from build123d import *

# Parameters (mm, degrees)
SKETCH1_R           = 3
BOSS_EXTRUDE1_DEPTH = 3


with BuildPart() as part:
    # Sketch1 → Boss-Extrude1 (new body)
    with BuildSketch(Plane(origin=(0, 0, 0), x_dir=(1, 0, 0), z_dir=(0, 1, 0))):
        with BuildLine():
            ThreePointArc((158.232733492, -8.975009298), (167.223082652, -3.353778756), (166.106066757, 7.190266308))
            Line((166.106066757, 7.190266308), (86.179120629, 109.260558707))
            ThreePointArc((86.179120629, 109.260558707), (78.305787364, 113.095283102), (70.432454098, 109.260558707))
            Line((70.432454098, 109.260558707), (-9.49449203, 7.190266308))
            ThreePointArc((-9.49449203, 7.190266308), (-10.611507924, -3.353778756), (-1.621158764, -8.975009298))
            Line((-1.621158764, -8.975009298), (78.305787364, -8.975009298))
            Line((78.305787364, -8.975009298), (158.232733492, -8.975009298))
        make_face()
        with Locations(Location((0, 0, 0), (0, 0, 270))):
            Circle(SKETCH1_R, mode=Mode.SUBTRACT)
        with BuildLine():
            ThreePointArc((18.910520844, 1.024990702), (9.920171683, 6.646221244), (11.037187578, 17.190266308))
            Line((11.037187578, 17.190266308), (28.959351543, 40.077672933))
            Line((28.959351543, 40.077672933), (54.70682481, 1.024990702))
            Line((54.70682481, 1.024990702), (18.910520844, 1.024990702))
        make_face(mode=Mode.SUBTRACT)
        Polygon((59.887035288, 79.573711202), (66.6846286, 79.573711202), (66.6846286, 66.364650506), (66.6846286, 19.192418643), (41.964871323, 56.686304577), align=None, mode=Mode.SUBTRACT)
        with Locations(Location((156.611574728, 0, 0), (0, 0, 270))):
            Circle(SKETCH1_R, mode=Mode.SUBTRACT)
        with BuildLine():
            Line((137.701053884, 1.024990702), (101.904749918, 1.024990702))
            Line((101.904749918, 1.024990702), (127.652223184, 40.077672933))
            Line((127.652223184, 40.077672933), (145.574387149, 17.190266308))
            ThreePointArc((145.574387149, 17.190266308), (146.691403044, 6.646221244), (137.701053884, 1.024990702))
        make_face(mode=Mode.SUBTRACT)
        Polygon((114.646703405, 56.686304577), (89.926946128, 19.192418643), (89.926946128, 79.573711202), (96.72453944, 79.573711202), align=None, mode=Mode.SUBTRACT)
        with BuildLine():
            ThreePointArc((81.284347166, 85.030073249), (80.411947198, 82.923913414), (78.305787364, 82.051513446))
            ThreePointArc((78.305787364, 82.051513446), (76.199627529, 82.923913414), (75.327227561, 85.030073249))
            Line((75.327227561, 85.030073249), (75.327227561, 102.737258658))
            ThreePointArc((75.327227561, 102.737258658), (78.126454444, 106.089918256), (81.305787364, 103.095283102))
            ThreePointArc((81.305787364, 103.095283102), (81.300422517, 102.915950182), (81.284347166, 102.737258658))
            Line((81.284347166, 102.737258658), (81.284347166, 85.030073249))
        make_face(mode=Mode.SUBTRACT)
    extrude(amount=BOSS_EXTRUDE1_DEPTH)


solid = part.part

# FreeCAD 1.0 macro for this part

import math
import FreeCAD as App
import Part
import Sketcher
Q = App.Units.Quantity


def add_polygon(sketch, points):
    """Adds a closed chain of lines whose ends are joined by coincident constraints."""
    first, n = sketch.GeometryCount, len(points)
    for a, b in zip(points, points[1:] + points[:1]):
        sketch.addGeometry(Part.LineSegment(App.Vector(*a, 0), App.Vector(*b, 0)), False)
    for i in range(n):
        sketch.addConstraint(Sketcher.Constraint("Coincident", first + i, 2, first + (i + 1) % n, 1))

doc = App.newDocument("Part")
body = doc.addObject("PartDesign::Body", "Body")

# Sketch on XZ plane
sketch1 = body.newObject("Sketcher::SketchObject", "Sketch")
sketch1.AttachmentSupport = (doc.getObject("XZ_Plane"), [""])
sketch1.MapMode = "FlatFace"
sketch1.addGeometry(Part.ArcOfCircle(Part.Circle(App.Vector(158.232733, -1.024991, 0), App.Vector(0, 0, 1), 10), math.radians(-38.063), math.radians(90)), False)  # 0
sketch1.addGeometry(Part.LineSegment(App.Vector(166.106067, -7.190266, 0), App.Vector(86.179121, -109.260559, 0)), False)  # 1
sketch1.addGeometry(Part.ArcOfCircle(Part.Circle(App.Vector(78.305787, -103.095283, 0), App.Vector(0, 0, 1), 10), math.radians(-141.937), math.radians(-38.063)), False)  # 2
sketch1.addGeometry(Part.LineSegment(App.Vector(70.432454, -109.260559, 0), App.Vector(-9.494492, -7.190266, 0)), False)  # 3
sketch1.addGeometry(Part.ArcOfCircle(Part.Circle(App.Vector(-1.621159, -1.024991, 0), App.Vector(0, 0, 1), 10), math.radians(90), math.radians(218.063)), False)  # 4
sketch1.addGeometry(Part.LineSegment(App.Vector(-1.621159, 8.975009, 0), App.Vector(158.232733, 8.975009, 0)), False)  # 5
sketch1.addGeometry(Part.Circle(App.Vector(0, 0, 0), App.Vector(0, 0, 1), 3), False)  # 6
sketch1.addGeometry(Part.LineSegment(App.Vector(54.706825, -1.024991, 0), App.Vector(18.910521, -1.024991, 0)), False)  # 7
sketch1.addGeometry(Part.ArcOfCircle(Part.Circle(App.Vector(18.910521, -11.024991, 0), App.Vector(0, 0, 1), 10), math.radians(90), math.radians(218.063)), False)  # 8
sketch1.addGeometry(Part.LineSegment(App.Vector(11.037188, -17.190266, 0), App.Vector(28.959352, -40.077673, 0)), False)  # 9
sketch1.addGeometry(Part.LineSegment(App.Vector(28.959352, -40.077673, 0), App.Vector(54.706825, -1.024991, 0)), False)  # 10
add_polygon(sketch1, [(41.964871, -56.686305), (59.887035, -79.573711), (66.684629, -79.573711), (66.684629, -19.192419)])  # lines 11-14
sketch1.addGeometry(Part.Circle(App.Vector(156.611575, 0, 0), App.Vector(0, 0, 1), 3), False)  # 15
sketch1.addGeometry(Part.ArcOfCircle(Part.Circle(App.Vector(137.701054, -11.024991, 0), App.Vector(0, 0, 1), 10), math.radians(-38.063), math.radians(90)), False)  # 16
sketch1.addGeometry(Part.LineSegment(App.Vector(137.701054, -1.024991, 0), App.Vector(101.90475, -1.024991, 0)), False)  # 17
sketch1.addGeometry(Part.LineSegment(App.Vector(101.90475, -1.024991, 0), App.Vector(127.652223, -40.077673, 0)), False)  # 18
sketch1.addGeometry(Part.LineSegment(App.Vector(127.652223, -40.077673, 0), App.Vector(145.574387, -17.190266, 0)), False)  # 19
add_polygon(sketch1, [(96.724539, -79.573711), (114.646703, -56.686305), (89.926946, -19.192419), (89.926946, -79.573711)])  # lines 20-23
sketch1.addGeometry(Part.LineSegment(App.Vector(81.284347, -102.737259, 0), App.Vector(81.284347, -85.030073, 0)), False)  # 24
sketch1.addGeometry(Part.ArcOfCircle(Part.Circle(App.Vector(78.305787, -85.030073, 0), App.Vector(0, 0, 1), 2.97856), math.radians(0), math.radians(90)), False)  # 25
sketch1.addGeometry(Part.ArcOfCircle(Part.Circle(App.Vector(78.305787, -85.030073, 0), App.Vector(0, 0, 1), 2.97856), math.radians(90), math.radians(180)), False)  # 26
sketch1.addGeometry(Part.LineSegment(App.Vector(75.327228, -85.030073, 0), App.Vector(75.327228, -102.737259, 0)), False)  # 27
sketch1.addGeometry(Part.ArcOfCircle(Part.Circle(App.Vector(78.305787, -103.095283, 0), App.Vector(0, 0, 1), 3), math.radians(173.145901), math.radians(360)), False)  # 28
sketch1.addGeometry(Part.ArcOfCircle(Part.Circle(App.Vector(78.305787, -103.095283, 0), App.Vector(0, 0, 1), 3), math.radians(0), math.radians(6.854099)), False)  # 29
sketch1.addConstraint(Sketcher.Constraint("Coincident", 0, 1, 1, 1))
sketch1.addConstraint(Sketcher.Constraint("Coincident", 1, 2, 2, 2))
sketch1.addConstraint(Sketcher.Constraint("Coincident", 2, 1, 3, 1))
sketch1.addConstraint(Sketcher.Constraint("Coincident", 3, 2, 4, 2))
sketch1.addConstraint(Sketcher.Constraint("Coincident", 4, 1, 5, 1))
sketch1.addConstraint(Sketcher.Constraint("Coincident", 5, 2, 0, 2))
sketch1.addConstraint(Sketcher.Constraint("Coincident", 7, 2, 8, 1))
sketch1.addConstraint(Sketcher.Constraint("Coincident", 8, 2, 9, 1))
sketch1.addConstraint(Sketcher.Constraint("Coincident", 9, 2, 10, 1))
sketch1.addConstraint(Sketcher.Constraint("Coincident", 10, 2, 7, 1))
sketch1.addConstraint(Sketcher.Constraint("Coincident", 16, 2, 17, 1))
sketch1.addConstraint(Sketcher.Constraint("Coincident", 17, 2, 18, 1))
sketch1.addConstraint(Sketcher.Constraint("Coincident", 18, 2, 19, 1))
sketch1.addConstraint(Sketcher.Constraint("Coincident", 19, 2, 16, 1))
sketch1.addConstraint(Sketcher.Constraint("Coincident", 24, 2, 25, 1))
sketch1.addConstraint(Sketcher.Constraint("Coincident", 25, 2, 26, 1))
sketch1.addConstraint(Sketcher.Constraint("Coincident", 26, 2, 27, 1))
sketch1.addConstraint(Sketcher.Constraint("Coincident", 27, 2, 28, 1))
sketch1.addConstraint(Sketcher.Constraint("Coincident", 28, 2, 29, 1))
sketch1.addConstraint(Sketcher.Constraint("Coincident", 29, 2, 24, 1))
sketch1.addConstraint(Sketcher.Constraint("Horizontal", 5))
sketch1.addConstraint(Sketcher.Constraint("Horizontal", 7))
sketch1.addConstraint(Sketcher.Constraint("Horizontal", 12))
sketch1.addConstraint(Sketcher.Constraint("Vertical", 13))
sketch1.addConstraint(Sketcher.Constraint("Horizontal", 17))
sketch1.addConstraint(Sketcher.Constraint("Vertical", 22))
sketch1.addConstraint(Sketcher.Constraint("Horizontal", 23))
sketch1.addConstraint(Sketcher.Constraint("Vertical", 24))
sketch1.addConstraint(Sketcher.Constraint("Vertical", 27))
sketch1.addConstraint(Sketcher.Constraint("Coincident", 6, 3, -1, 1))
sketch1.addConstraint(Sketcher.Constraint("Coincident", 26, 3, 25, 3))
sketch1.addConstraint(Sketcher.Constraint("Coincident", 28, 3, 2, 3))
sketch1.addConstraint(Sketcher.Constraint("Coincident", 29, 3, 2, 3))
sketch1.addConstraint(Sketcher.Constraint("PointOnObject", 15, 3, -1))
sketch1.addConstraint(Sketcher.Constraint("Diameter", 6, Q("6 mm")))
sketch1.addConstraint(Sketcher.Constraint("Diameter", 15, Q("6 mm")))
sketch1.addConstraint(Sketcher.Constraint("Radius", 0, Q("10 mm")))
sketch1.addConstraint(Sketcher.Constraint("Radius", 2, Q("10 mm")))
sketch1.addConstraint(Sketcher.Constraint("Radius", 4, Q("10 mm")))
sketch1.addConstraint(Sketcher.Constraint("Radius", 8, Q("10 mm")))
sketch1.addConstraint(Sketcher.Constraint("Radius", 16, Q("10 mm")))
sketch1.addConstraint(Sketcher.Constraint("Radius", 28, Q("3 mm")))
sketch1.addConstraint(Sketcher.Constraint("DistanceY", 8, 3, 4, 3, Q("10 mm")))
sketch1.addConstraint(Sketcher.Constraint("DistanceY", 16, 3, 0, 3, Q("10 mm")))
sketch1.addConstraint(Sketcher.Constraint("DistanceY", 8, 2, 3, 2, Q("10 mm")))
sketch1.addConstraint(Sketcher.Constraint("DistanceY", 19, 2, 0, 1, Q("10 mm")))
sketch1.addConstraint(Sketcher.Constraint("Radius", 25, Q("2.97856 mm")))
sketch1.addConstraint(Sketcher.Constraint("DistanceX", 24, 2, 22, 2, Q("8.642599 mm")))
sketch1.addConstraint(Sketcher.Constraint("DistanceX", 12, 2, 26, 2, Q("8.642599 mm")))
sketch1.addConstraint(Sketcher.Constraint("DistanceY", 2, 1, 27, 2, Q("6.5233 mm")))
sketch1.addConstraint(Sketcher.Constraint("DistanceY", 1, 2, 27, 2, Q("6.5233 mm")))
sketch1.addConstraint(Sketcher.Constraint("Distance", 14, Q("44.909441 mm")))
sketch1.addConstraint(Sketcher.Constraint("Distance", 21, Q("44.909441 mm")))
sketch1.addConstraint(Sketcher.Constraint("DistanceX", 5, 1, 5, 2, Q("159.853892 mm")))
sketch1.addConstraint(Sketcher.Constraint("DistanceX", 7, 2, 7, 1, Q("35.796304 mm")))
sketch1.addConstraint(Sketcher.Constraint("DistanceX", 12, 1, 12, 2, Q("6.797593 mm")))
sketch1.addConstraint(Sketcher.Constraint("DistanceX", 17, 2, 17, 1, Q("35.796304 mm")))
sketch1.addConstraint(Sketcher.Constraint("DistanceX", 23, 1, 23, 2, Q("6.797593 mm")))
sketch1.addConstraint(Sketcher.Constraint("DistanceY", 13, 1, 13, 2, Q("60.381293 mm")))
sketch1.addConstraint(Sketcher.Constraint("DistanceY", 22, 2, 22, 1, Q("60.381293 mm")))
sketch1.addConstraint(Sketcher.Constraint("DistanceY", 24, 1, 24, 2, Q("17.707185 mm")))
sketch1.addConstraint(Sketcher.Constraint("DistanceY", 27, 2, 27, 1, Q("17.707185 mm")))
sketch1.addConstraint(Sketcher.Constraint("DistanceY", 0, 3, -1, 1, Q("1.024991 mm")))
sketch1.addConstraint(Sketcher.Constraint("DistanceX", 4, 3, -1, 1, Q("1.621159 mm")))
sketch1.addConstraint(Sketcher.Constraint("DistanceX", -1, 1, 8, 3, Q("18.910521 mm")))
sketch1.addConstraint(Sketcher.Constraint("DistanceX", -1, 1, 1, 2, Q("86.179121 mm")))
sketch1.addConstraint(Sketcher.Constraint("DistanceY", 1, 2, -1, 1, Q("109.260559 mm")))
sketch1.addConstraint(Sketcher.Constraint("DistanceX", 4, 1, -1, 1, Q("1.621159 mm")))
sketch1.addConstraint(Sketcher.Constraint("DistanceX", -1, 1, 7, 2, Q("18.910521 mm")))
sketch1.addConstraint(Sketcher.Constraint("DistanceX", -1, 1, 9, 2, Q("28.959352 mm")))
sketch1.addConstraint(Sketcher.Constraint("DistanceY", 11, 2, -1, 1, Q("79.573711 mm")))
sketch1.addConstraint(Sketcher.Constraint("DistanceX", -1, 1, 12, 2, Q("66.684629 mm")))
sketch1.addConstraint(Sketcher.Constraint("DistanceX", -1, 1, 14, 2, Q("41.964871 mm")))
sketch1.addConstraint(Sketcher.Constraint("DistanceX", -1, 1, 17, 2, Q("101.90475 mm")))
sketch1.addConstraint(Sketcher.Constraint("DistanceY", 21, 2, -1, 1, Q("19.192419 mm")))
sketch1.addConstraint(Sketcher.Constraint("DistanceX", 15, 3, 0, 3, Q("1.621159 mm")))
sketch1.addConstraint(Sketcher.Constraint("DistanceX", 16, 3, 15, 3, Q("18.910521 mm")))
sketch1.addConstraint(Sketcher.Constraint("DistanceY", 2, 3, 25, 3, Q("18.06521 mm")))
sketch1.addConstraint(Sketcher.Constraint("DistanceX", 26, 3, 0, 1, Q("87.800279 mm")))
sketch1.addConstraint(Sketcher.Constraint("DistanceX", 3, 2, 25, 3, Q("87.800279 mm")))
sketch1.addConstraint(Sketcher.Constraint("DistanceX", 15, 3, 5, 2, Q("1.621159 mm")))
sketch1.addConstraint(Sketcher.Constraint("DistanceY", 14, 2, 9, 2, Q("16.608632 mm")))
sketch1.addConstraint(Sketcher.Constraint("DistanceX", 18, 2, 16, 3, Q("10.048831 mm")))
sketch1.addConstraint(Sketcher.Constraint("DistanceX", 20, 2, 18, 2, Q("13.00552 mm")))
sketch1.addConstraint(Sketcher.Constraint("DistanceY", 20, 2, 18, 2, Q("16.608632 mm")))
sketch1.addConstraint(Sketcher.Constraint("DistanceX", 25, 2, 24, 2, Q("2.97856 mm")))
sketch1.addConstraint(Sketcher.Constraint("DistanceY", 28, 2, -1, 1, Q("103.095283 mm")))
pad1 = body.newObject("PartDesign::Pad", "Pad")
pad1.Profile = sketch1
pad1.Length = 3
pad1.Reversed = True

doc.recompute()
